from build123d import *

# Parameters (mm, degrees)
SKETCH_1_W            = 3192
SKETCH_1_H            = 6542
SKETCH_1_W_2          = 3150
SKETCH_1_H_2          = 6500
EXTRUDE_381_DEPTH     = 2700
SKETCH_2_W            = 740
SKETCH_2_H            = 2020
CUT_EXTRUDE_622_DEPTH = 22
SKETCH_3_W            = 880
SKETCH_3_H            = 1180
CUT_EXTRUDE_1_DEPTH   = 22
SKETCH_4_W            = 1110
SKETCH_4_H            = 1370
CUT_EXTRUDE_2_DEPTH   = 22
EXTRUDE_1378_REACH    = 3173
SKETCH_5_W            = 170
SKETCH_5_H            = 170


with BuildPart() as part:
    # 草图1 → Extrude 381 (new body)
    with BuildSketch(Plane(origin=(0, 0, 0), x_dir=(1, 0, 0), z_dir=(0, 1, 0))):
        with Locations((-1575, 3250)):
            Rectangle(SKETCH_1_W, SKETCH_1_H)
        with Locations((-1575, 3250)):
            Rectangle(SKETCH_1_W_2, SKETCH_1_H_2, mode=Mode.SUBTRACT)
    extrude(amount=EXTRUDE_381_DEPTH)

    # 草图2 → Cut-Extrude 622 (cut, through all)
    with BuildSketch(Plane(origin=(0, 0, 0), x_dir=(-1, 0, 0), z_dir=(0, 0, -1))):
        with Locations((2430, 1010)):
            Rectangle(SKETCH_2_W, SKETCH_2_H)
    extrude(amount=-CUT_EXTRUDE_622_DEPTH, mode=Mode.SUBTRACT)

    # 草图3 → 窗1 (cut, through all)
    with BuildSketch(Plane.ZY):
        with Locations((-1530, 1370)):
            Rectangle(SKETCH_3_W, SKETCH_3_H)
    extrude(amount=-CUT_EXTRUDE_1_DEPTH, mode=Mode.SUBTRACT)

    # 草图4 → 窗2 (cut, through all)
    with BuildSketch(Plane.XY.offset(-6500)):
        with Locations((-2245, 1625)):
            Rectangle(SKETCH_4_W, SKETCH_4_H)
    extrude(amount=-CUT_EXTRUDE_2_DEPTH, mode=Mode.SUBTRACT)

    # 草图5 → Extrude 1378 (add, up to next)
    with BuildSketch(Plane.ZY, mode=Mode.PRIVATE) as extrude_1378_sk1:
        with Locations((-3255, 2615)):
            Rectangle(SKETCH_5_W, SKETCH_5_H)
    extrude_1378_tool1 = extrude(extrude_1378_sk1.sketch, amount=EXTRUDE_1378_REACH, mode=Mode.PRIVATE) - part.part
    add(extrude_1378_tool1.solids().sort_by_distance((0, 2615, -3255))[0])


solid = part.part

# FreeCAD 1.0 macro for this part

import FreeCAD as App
import Part
import Sketcher

V = App.Vector
Q = App.Units.Quantity


def add_polygon(sketch, points):
    """Adds a closed chain of lines whose ends are joined by coincident constraints."""
    first, n = sketch.GeometryCount, len(points)
    for a, b in zip(points, points[1:] + points[:1]):
        sketch.addGeometry(Part.LineSegment(App.Vector(*a, 0), App.Vector(*b, 0)), False)
    for i in range(n):
        sketch.addConstraint(Sketcher.Constraint("Coincident", first + i, 2, first + (i + 1) % n, 1))

doc = App.newDocument("Part")
params = doc.addObject("Spreadsheet::Sheet", "Params")
for row, (alias, value) in enumerate([
    ("sketch1_width", "3192 mm"),
    ("sketch1_width2", "3150 mm"),
    ("sketch1_height", "6542 mm"),
    ("sketch1_height2", "6500 mm"),
    ("pad1_length", "2700 mm"),
    ("sketch2_width", "740 mm"),
    ("sketch2_height", "2020 mm"),
    ("sketch3_width", "1180 mm"),
    ("sketch3_height", "880 mm"),
    ("sketch4_width", "1110 mm"),
    ("sketch4_height", "1370 mm"),
    ("sketch5_width", "170 mm"),
], start=1):
    params.set(f"A{row}", alias)
    params.set(f"B{row}", "=" + value)
    params.setAlias(f"B{row}", alias)

body = doc.addObject("PartDesign::Body", "Body")

sketch1 = doc.addObject("Sketcher::SketchObject", "Sketch")
body.addObject(sketch1)
sketch1.AttachmentSupport = (doc.XZ_Plane, [""])
sketch1.MapMode = "FlatFace"
add_polygon(sketch1, [(-3171, -6521), (-3171, 21), (21, 21), (21, -6521)])
add_polygon(sketch1, [(0, 0), (-3150, 0), (-3150, -6500), (0, -6500)])
sketch1.addConstraint([
    Sketcher.Constraint("Vertical", 0),
    Sketcher.Constraint("Horizontal", 1),
    Sketcher.Constraint("Vertical", 2),
    Sketcher.Constraint("Horizontal", 3),
    Sketcher.Constraint("Horizontal", 4),
    Sketcher.Constraint("Vertical", 5),
    Sketcher.Constraint("Horizontal", 6),
    Sketcher.Constraint("Vertical", 7),
    Sketcher.Constraint("Coincident", 7, 2, -1, 1),
    Sketcher.Constraint("DistanceX", 1, 1, 1, 2, Q("3192 mm")),
    Sketcher.Constraint("DistanceX", 4, 2, 4, 1, Q("3150 mm")),
    Sketcher.Constraint("DistanceY", 0, 1, 0, 2, Q("6542 mm")),
    Sketcher.Constraint("DistanceY", 5, 2, 5, 1, Q("6500 mm")),
    Sketcher.Constraint("DistanceX", 0, 2, -1, 1, Q("3171 mm")),
    Sketcher.Constraint("DistanceY", -1, 1, 0, 2, Q("21 mm")),
])
sketch1.setExpression("Constraints[17]", "Params.sketch1_width")
sketch1.setExpression("Constraints[18]", "Params.sketch1_width2")
sketch1.setExpression("Constraints[19]", "Params.sketch1_height")
sketch1.setExpression("Constraints[20]", "Params.sketch1_height2")
pad1 = doc.addObject("PartDesign::Pad", "Pad")
body.addObject(pad1)
pad1.Profile = sketch1
pad1.setExpression("Length", "Params.pad1_length")
pad1.Reversed = True

sketch2 = doc.addObject("Sketcher::SketchObject", "Sketch001")
body.addObject(sketch2)
sketch2.AttachmentSupport = (doc.XY_Plane, [""])
sketch2.MapMode = "FlatFace"
add_polygon(sketch2, [(-2060, 2020), (-2060, 0), (-2800, 0), (-2800, 2020)])
sketch2.addConstraint([
    Sketcher.Constraint("Vertical", 0),
    Sketcher.Constraint("Horizontal", 1),
    Sketcher.Constraint("Vertical", 2),
    Sketcher.Constraint("Horizontal", 3),
    Sketcher.Constraint("PointOnObject", 0, 2, -1),
    Sketcher.Constraint("DistanceX", 1, 2, 1, 1, Q("740 mm")),
    Sketcher.Constraint("DistanceY", 0, 2, 0, 1, Q("2020 mm")),
    Sketcher.Constraint("DistanceX", 0, 2, -1, 1, Q("2060 mm")),
])
sketch2.setExpression("Constraints[9]", "Params.sketch2_width")
sketch2.setExpression("Constraints[10]", "Params.sketch2_height")
pocket1 = doc.addObject("PartDesign::Pocket", "Pocket")
body.addObject(pocket1)
pocket1.Profile = sketch2
pocket1.Type = "ThroughAll"
pocket1.Reversed = True

sketch3 = doc.addObject("Sketcher::SketchObject", "Sketch002")
body.addObject(sketch3)
sketch3.AttachmentSupport = (doc.YZ_Plane, [""])
sketch3.MapMode = "FlatFace"
add_polygon(sketch3, [(1960, -1970), (780, -1970), (780, -1090), (1960, -1090)])
sketch3.addConstraint([
    Sketcher.Constraint("Horizontal", 0),
    Sketcher.Constraint("Vertical", 1),
    Sketcher.Constraint("Horizontal", 2),
    Sketcher.Constraint("Vertical", 3),
    Sketcher.Constraint("DistanceX", 0, 2, 0, 1, Q("1180 mm")),
    Sketcher.Constraint("DistanceY", 1, 1, 1, 2, Q("880 mm")),
    Sketcher.Constraint("DistanceX", -1, 1, 0, 2, Q("780 mm")),
    Sketcher.Constraint("DistanceY", 0, 2, -1, 1, Q("1970 mm")),
])
sketch3.setExpression("Constraints[8]", "Params.sketch3_width")
sketch3.setExpression("Constraints[9]", "Params.sketch3_height")
pocket2 = doc.addObject("PartDesign::Pocket", "Pocket001")
body.addObject(pocket2)
pocket2.Profile = sketch3
pocket2.Type = "ThroughAll"
pocket2.Reversed = True

sketch4 = doc.addObject("Sketcher::SketchObject", "Sketch003")
body.addObject(sketch4)
sketch4.AttachmentSupport = (doc.XY_Plane, [""])
sketch4.MapMode = "FlatFace"
sketch4.AttachmentOffset = App.Placement(V(0, 0, -6500), App.Rotation())
add_polygon(sketch4, [(-2800, 2310), (-2800, 940), (-1690, 940), (-1690, 2310)])
sketch4.addConstraint([
    Sketcher.Constraint("Vertical", 0),
    Sketcher.Constraint("Horizontal", 1),
    Sketcher.Constraint("Vertical", 2),
    Sketcher.Constraint("Horizontal", 3),
    Sketcher.Constraint("DistanceX", 1, 1, 1, 2, Q("1110 mm")),
    Sketcher.Constraint("DistanceY", 0, 2, 0, 1, Q("1370 mm")),
    Sketcher.Constraint("DistanceX", 0, 2, -1, 1, Q("2800 mm")),
    Sketcher.Constraint("DistanceY", -1, 1, 0, 2, Q("940 mm")),
])
sketch4.setExpression("Constraints[8]", "Params.sketch4_width")
sketch4.setExpression("Constraints[9]", "Params.sketch4_height")
pocket3 = doc.addObject("PartDesign::Pocket", "Pocket002")
body.addObject(pocket3)
pocket3.Profile = sketch4
pocket3.Type = "ThroughAll"

sketch5 = doc.addObject("Sketcher::SketchObject", "Sketch004")
body.addObject(sketch5)
sketch5.AttachmentSupport = (doc.YZ_Plane, [""])
sketch5.MapMode = "FlatFace"
add_polygon(sketch5, [(2700, -3340), (2530, -3340), (2530, -3170), (2700, -3170)])
sketch5.addConstraint([
    Sketcher.Constraint("Horizontal", 0),
    Sketcher.Constraint("Vertical", 1),
    Sketcher.Constraint("Horizontal", 2),
    Sketcher.Constraint("Vertical", 3),
    Sketcher.Constraint("Equal", 2, 1),
    Sketcher.Constraint("DistanceX", 0, 2, 0, 1, Q("170 mm")),
    Sketcher.Constraint("DistanceX", -1, 1, 0, 2, Q("2530 mm")),
    Sketcher.Constraint("DistanceY", 0, 2, -1, 1, Q("3340 mm")),
])
sketch5.setExpression("Constraints[9]", "Params.sketch5_width")
pad2 = doc.addObject("PartDesign::Pad", "Pad001")
body.addObject(pad2)
pad2.Profile = sketch5
pad2.Type = "UpToFirst"
pad2.Reversed = True

doc.recompute()
